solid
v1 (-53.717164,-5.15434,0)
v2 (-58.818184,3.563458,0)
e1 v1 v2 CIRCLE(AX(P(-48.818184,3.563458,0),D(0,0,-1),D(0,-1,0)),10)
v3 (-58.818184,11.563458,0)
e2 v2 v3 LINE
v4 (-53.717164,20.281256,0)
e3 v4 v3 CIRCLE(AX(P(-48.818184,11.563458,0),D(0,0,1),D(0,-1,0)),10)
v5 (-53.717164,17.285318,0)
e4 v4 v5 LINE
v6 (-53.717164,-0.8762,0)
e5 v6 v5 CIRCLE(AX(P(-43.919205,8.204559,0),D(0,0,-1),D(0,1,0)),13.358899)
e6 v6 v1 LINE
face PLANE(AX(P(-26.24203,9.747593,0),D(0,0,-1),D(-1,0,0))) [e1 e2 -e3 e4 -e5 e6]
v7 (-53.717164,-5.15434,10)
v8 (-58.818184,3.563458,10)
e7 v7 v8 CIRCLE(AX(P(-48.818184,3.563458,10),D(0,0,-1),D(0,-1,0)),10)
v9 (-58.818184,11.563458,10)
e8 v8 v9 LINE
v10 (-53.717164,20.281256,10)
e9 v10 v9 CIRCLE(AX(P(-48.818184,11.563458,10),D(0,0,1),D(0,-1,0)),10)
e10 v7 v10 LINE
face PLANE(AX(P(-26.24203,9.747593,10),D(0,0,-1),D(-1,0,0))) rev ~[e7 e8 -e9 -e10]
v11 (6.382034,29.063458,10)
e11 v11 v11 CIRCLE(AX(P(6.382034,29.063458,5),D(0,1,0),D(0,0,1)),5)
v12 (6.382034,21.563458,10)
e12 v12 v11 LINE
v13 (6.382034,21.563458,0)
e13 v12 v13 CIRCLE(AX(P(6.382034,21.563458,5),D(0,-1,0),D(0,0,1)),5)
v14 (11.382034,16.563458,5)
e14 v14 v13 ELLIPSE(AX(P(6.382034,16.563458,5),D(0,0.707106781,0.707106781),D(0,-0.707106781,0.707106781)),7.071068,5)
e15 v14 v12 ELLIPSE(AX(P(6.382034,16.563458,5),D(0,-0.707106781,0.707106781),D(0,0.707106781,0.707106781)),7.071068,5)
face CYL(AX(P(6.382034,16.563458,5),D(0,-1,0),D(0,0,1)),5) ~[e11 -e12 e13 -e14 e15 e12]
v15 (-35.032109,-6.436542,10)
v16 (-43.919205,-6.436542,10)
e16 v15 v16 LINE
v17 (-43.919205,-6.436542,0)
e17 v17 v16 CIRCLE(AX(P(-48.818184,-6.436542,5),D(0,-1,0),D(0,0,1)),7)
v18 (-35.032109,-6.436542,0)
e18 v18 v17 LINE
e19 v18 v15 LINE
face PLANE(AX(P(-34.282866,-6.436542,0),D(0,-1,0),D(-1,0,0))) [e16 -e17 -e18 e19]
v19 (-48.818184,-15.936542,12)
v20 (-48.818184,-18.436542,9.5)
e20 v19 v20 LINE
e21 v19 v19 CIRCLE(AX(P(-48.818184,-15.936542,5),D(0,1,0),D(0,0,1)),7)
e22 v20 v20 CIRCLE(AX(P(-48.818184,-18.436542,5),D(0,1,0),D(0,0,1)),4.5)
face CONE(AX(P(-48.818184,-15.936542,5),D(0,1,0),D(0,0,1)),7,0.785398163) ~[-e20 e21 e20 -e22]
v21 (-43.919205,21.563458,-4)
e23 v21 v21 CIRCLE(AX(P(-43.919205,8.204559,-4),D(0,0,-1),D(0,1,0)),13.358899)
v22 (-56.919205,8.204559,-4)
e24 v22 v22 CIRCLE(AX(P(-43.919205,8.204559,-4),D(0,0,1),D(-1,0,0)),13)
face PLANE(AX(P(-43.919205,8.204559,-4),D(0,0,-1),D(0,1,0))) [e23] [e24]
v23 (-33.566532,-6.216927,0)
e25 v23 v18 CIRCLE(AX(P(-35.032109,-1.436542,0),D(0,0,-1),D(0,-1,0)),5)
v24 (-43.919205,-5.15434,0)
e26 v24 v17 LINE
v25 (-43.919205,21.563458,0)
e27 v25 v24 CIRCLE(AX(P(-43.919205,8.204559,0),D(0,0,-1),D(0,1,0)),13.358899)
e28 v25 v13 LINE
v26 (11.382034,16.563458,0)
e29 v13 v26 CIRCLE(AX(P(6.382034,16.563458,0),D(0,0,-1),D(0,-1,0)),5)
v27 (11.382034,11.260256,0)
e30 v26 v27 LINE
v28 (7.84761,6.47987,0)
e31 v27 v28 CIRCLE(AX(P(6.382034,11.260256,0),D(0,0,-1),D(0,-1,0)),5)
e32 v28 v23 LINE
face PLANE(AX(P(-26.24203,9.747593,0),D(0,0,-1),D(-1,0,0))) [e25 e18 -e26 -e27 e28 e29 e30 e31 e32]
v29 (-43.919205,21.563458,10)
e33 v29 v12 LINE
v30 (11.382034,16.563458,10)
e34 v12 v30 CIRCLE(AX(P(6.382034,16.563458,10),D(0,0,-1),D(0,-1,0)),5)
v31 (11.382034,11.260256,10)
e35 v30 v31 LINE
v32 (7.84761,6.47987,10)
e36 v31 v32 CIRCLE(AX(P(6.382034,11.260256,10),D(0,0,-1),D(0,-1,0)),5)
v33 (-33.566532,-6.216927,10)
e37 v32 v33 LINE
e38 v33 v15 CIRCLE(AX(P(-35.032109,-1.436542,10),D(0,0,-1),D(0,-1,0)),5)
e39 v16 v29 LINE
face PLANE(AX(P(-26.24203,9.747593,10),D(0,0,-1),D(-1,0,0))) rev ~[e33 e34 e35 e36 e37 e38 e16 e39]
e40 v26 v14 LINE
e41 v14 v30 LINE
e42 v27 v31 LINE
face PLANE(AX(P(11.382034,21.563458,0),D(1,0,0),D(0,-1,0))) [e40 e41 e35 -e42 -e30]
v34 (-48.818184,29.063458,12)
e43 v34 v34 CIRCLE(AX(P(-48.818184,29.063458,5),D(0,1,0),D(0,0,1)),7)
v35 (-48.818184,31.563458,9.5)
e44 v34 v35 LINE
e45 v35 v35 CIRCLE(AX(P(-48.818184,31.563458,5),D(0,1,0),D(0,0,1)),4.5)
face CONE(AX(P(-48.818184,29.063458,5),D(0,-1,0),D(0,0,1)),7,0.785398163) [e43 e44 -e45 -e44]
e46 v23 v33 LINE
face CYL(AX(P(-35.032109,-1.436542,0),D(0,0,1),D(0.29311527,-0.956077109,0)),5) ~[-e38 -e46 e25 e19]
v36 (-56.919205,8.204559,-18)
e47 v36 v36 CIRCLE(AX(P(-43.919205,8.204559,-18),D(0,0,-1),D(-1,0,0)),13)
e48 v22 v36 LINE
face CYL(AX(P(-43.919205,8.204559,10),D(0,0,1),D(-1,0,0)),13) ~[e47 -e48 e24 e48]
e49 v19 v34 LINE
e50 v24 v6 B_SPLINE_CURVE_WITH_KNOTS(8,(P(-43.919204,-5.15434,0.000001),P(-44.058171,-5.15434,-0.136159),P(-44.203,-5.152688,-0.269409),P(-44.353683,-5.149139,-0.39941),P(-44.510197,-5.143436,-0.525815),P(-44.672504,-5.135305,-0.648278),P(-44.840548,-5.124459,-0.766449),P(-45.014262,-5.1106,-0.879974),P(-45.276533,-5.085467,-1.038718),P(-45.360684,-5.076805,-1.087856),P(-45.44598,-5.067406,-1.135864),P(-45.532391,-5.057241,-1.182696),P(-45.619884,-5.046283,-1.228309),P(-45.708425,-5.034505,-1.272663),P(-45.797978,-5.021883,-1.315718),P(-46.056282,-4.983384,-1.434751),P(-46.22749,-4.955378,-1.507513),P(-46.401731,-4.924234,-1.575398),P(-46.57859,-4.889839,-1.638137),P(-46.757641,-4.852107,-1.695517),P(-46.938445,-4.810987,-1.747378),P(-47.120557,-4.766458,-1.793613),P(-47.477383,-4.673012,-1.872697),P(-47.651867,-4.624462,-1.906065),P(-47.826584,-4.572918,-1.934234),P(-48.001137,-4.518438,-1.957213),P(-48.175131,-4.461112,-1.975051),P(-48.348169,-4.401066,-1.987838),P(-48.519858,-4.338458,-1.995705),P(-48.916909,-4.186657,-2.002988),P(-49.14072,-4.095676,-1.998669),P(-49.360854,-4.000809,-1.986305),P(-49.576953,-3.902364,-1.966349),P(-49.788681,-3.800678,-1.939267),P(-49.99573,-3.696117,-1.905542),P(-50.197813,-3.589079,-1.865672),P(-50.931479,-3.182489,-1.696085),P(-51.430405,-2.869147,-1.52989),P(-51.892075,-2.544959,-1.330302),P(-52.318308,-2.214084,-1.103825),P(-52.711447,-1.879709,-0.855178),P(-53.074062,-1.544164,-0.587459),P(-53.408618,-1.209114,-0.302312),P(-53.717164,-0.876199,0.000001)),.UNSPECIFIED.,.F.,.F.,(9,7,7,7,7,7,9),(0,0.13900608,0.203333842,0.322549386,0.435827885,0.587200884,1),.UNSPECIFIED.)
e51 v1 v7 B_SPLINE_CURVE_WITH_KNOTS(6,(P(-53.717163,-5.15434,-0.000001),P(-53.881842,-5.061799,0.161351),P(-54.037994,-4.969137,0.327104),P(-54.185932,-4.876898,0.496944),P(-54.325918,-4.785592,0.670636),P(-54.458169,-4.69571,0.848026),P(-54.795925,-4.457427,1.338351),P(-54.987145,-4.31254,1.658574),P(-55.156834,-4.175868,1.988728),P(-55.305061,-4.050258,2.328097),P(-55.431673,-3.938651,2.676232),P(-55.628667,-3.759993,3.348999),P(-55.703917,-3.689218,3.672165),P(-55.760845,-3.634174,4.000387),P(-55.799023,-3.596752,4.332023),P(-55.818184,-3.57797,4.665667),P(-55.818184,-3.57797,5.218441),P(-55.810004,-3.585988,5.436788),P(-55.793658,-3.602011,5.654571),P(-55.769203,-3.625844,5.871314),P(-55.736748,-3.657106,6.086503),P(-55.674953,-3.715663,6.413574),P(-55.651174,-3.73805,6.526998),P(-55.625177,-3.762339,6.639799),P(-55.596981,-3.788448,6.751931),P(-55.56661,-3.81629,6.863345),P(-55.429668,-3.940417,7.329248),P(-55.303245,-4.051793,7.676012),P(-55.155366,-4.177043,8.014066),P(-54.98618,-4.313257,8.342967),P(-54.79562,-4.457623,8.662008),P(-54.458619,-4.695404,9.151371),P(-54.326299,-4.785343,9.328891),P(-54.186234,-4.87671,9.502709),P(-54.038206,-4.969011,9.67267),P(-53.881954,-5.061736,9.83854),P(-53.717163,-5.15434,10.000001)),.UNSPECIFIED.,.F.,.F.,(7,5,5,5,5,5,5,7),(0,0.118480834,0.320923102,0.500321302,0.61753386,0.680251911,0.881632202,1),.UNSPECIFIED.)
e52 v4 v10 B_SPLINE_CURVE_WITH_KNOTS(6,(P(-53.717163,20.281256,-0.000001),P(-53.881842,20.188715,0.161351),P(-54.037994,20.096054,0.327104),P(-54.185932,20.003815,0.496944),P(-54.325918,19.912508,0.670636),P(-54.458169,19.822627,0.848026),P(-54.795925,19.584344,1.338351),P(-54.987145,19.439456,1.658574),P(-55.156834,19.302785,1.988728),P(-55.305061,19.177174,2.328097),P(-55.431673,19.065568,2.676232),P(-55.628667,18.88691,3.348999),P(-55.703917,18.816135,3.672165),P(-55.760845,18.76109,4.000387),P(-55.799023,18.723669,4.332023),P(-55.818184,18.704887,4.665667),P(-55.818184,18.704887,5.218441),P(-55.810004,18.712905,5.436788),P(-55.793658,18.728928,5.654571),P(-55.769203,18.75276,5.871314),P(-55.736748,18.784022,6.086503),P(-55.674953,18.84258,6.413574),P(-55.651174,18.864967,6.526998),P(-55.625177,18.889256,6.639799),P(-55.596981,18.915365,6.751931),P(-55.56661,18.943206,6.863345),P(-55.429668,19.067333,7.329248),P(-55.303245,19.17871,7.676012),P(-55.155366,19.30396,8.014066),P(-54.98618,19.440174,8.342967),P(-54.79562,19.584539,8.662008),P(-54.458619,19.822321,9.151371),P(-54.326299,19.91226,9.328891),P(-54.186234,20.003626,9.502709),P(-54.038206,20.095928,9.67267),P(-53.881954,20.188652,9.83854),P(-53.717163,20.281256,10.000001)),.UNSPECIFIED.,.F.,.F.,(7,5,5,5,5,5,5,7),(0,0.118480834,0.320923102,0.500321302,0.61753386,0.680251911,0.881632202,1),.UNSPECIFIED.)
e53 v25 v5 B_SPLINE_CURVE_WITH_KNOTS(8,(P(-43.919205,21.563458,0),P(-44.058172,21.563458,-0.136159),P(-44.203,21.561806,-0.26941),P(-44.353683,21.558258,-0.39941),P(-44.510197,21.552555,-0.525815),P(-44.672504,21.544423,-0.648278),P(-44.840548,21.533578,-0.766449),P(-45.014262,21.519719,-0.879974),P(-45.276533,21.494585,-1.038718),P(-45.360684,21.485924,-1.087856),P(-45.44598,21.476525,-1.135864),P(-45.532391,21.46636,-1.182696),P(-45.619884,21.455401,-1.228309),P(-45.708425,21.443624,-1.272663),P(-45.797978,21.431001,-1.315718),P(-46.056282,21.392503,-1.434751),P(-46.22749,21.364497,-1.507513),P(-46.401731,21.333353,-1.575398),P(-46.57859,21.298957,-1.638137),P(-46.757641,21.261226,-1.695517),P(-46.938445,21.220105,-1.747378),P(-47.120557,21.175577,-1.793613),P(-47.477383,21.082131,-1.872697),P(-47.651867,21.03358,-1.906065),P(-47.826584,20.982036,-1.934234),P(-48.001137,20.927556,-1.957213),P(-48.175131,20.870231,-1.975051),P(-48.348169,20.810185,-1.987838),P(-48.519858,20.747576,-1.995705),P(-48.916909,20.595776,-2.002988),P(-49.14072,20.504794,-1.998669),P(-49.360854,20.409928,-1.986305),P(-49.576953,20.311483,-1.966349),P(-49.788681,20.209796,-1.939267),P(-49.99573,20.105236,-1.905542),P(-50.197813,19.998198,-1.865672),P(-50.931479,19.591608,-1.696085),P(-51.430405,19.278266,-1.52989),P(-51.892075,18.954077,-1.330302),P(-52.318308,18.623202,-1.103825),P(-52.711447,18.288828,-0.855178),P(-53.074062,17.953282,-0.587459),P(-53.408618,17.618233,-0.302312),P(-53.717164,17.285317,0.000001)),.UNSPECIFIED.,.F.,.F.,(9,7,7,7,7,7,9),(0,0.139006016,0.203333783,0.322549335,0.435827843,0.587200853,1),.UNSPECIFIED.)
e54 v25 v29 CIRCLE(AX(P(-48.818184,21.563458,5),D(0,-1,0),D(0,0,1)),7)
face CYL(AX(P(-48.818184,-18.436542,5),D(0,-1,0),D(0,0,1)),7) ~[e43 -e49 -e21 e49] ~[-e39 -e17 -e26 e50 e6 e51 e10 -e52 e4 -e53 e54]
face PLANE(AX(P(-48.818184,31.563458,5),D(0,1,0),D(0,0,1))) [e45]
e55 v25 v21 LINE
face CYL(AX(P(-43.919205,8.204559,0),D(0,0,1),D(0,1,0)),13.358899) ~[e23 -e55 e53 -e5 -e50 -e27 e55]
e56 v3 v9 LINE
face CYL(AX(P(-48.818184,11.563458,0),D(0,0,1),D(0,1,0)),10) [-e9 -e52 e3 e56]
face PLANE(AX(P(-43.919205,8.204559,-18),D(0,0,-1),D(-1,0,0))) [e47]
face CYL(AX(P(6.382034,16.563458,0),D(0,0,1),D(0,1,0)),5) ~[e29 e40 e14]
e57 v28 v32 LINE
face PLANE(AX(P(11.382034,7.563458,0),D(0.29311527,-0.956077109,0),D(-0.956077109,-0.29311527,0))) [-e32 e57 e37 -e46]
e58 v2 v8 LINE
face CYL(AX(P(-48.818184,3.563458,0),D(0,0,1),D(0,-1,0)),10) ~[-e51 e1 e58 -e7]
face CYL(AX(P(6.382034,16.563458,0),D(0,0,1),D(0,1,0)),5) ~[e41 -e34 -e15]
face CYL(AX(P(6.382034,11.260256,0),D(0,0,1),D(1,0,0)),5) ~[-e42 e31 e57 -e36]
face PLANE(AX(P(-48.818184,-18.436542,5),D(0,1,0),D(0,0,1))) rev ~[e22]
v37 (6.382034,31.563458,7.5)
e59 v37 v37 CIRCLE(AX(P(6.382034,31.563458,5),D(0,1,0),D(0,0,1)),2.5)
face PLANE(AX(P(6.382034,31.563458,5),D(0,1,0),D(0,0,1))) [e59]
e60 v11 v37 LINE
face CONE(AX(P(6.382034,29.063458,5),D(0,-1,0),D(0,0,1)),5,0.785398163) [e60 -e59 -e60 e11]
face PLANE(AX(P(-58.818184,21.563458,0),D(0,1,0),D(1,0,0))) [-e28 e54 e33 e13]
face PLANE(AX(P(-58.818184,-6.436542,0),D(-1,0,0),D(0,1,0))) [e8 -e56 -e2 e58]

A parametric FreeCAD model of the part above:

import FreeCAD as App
import Part
import Sketcher

V = App.Vector


def edges_at(feature, points):
    """Names of the edges that pass closest to the given points."""
    edges = feature.Shape.Edges
    near = lambda p: min(range(len(edges)), key=lambda i: edges[i].distToShape(Part.Vertex(*p))[0])
    return sorted({f"Edge{near(p) + 1}" for p in points})

doc = App.newDocument("Part")
body = doc.addObject("PartDesign::Body", "Body")

sketch1 = doc.addObject("Sketcher::SketchObject", "Sketch")
body.addObject(sketch1)
sketch1.AttachmentSupport = (doc.XY_Plane, [""])
sketch1.MapMode = "FlatFace"
sketch1.addGeometry([
    Part.LineSegment(V(11.382034, 21.563458, 0), V(-58.818184, 21.563458, 0)),
    Part.LineSegment(V(-58.818184, 21.563458, 0), V(-58.818184, -6.436542, 0)),
    Part.LineSegment(V(-58.818184, -6.436542, 0), V(-34.282866, -6.436542, 0)),
    Part.LineSegment(V(-34.282866, -6.436542, 0), V(11.382034, 7.563458, 0)),
    Part.LineSegment(V(11.382034, 7.563458, 0), V(11.382034, 21.563458, 0)),
], False)
sketch1.addConstraint([
    Sketcher.Constraint("Coincident", 0, 2, 1, 1),
    Sketcher.Constraint("Coincident", 1, 2, 2, 1),
    Sketcher.Constraint("Coincident", 2, 2, 3, 1),
    Sketcher.Constraint("Coincident", 3, 2, 4, 1),
    Sketcher.Constraint("Coincident", 4, 2, 0, 1),
    Sketcher.Constraint("Horizontal", 0),
    Sketcher.Constraint("Vertical", 1),
    Sketcher.Constraint("Horizontal", 2),
    Sketcher.Constraint("Vertical", 4),
    Sketcher.Constraint("DistanceY", 1, 2, 1, 1, 28.0),
    Sketcher.Constraint("DistanceY", 4, 1, 4, 2, 14.0),
    Sketcher.Constraint("DistanceX", 0, 2, 0, 1, 70.200218),
    Sketcher.Constraint("DistanceX", 2, 1, 2, 2, 24.535318),
    Sketcher.Constraint("DistanceY", -1, 1, 0, 2, 21.563458),
    Sketcher.Constraint("DistanceX", 0, 2, -1, 1, 58.818184),
])
pad1 = doc.addObject("PartDesign::Pad", "Pad")
body.addObject(pad1)
pad1.Profile = sketch1
pad1.Length = 10
doc.recompute()

fillet = doc.addObject("PartDesign::Fillet", "Fillet")
body.addObject(fillet)
fillet.Base = (pad1, edges_at(pad1, [(-58.818, 21.563, 5), (-58.818, -6.437, 5)]))
fillet.Radius = 10
doc.recompute()

fillet2 = doc.addObject("PartDesign::Fillet", "Fillet001")
body.addObject(fillet2)
fillet2.Base = (fillet, edges_at(fillet, [(11.382, 21.563, 5), (11.382, 7.563, 5), (-34.283, -6.437, 5)]))
fillet2.Radius = 5

sketch2 = doc.addObject("Sketcher::SketchObject", "Sketch001")
body.addObject(sketch2)
sketch2.AttachmentSupport = (doc.XZ_Plane, [""])
sketch2.MapMode = "FlatFace"
sketch2.AttachmentOffset = App.Placement(V(0, 0, -21.563458), App.Rotation())
sketch2.addGeometry(Part.Circle(V(-48.818184, 5, 0), V(0, 0, 1), 7), False)
sketch2.addConstraint([
    Sketcher.Constraint("Diameter", 0, 14.0),
    Sketcher.Constraint("DistanceY", -1, 1, 0, 3, 5.0),
    Sketcher.Constraint("DistanceX", 0, 3, -1, 1, 48.818184),
])
pad2 = doc.addObject("PartDesign::Pad", "Pad001")
body.addObject(pad2)
pad2.Profile = sketch2
pad2.Type = "TwoLengths"
pad2.Length = 10
pad2.Length2 = 40
pad2.Reversed = True

sketch3 = doc.addObject("Sketcher::SketchObject", "Sketch002")
body.addObject(sketch3)
sketch3.AttachmentSupport = (doc.XZ_Plane, [""])
sketch3.MapMode = "FlatFace"
sketch3.AttachmentOffset = App.Placement(V(0, 0, -16.563458), App.Rotation())
sketch3.addGeometry(Part.Circle(V(6.382034, 5, 0), V(0, 0, 1), 5), False)
sketch3.addConstraint([
    Sketcher.Constraint("Diameter", 0, 10.0),
    Sketcher.Constraint("DistanceY", -1, 1, 0, 3, 5.0),
    Sketcher.Constraint("DistanceX", -1, 1, 0, 3, 6.382034),
])
pad3 = doc.addObject("PartDesign::Pad", "Pad002")
body.addObject(pad3)
pad3.Profile = sketch3
pad3.Length = 15
pad3.Reversed = True
doc.recompute()

chamfer = doc.addObject("PartDesign::Chamfer", "Chamfer")
body.addObject(chamfer)
chamfer.Base = (pad3, edges_at(pad3, [(-48.818, -18.437, -2), (-48.818, 31.563, -2), (6.382, 31.563, 0)]))
chamfer.Size = 2.5

sketch4 = doc.addObject("Sketcher::SketchObject", "Sketch003")
body.addObject(sketch4)
sketch4.AttachmentSupport = (doc.XY_Plane, [""])
sketch4.MapMode = "FlatFace"
sketch4.addGeometry(Part.Circle(V(-43.919205, 8.204559, 0), V(0, 0, 1), 13), False)
sketch4.addConstraint([
    Sketcher.Constraint("Diameter", 0, 26.0),
    Sketcher.Constraint("DistanceY", -1, 1, 0, 3, 8.204559),
    Sketcher.Constraint("DistanceX", 0, 3, -1, 1, 43.919205),
])
pad4 = doc.addObject("PartDesign::Pad", "Pad003")
body.addObject(pad4)
pad4.Profile = sketch4
pad4.Type = "TwoLengths"
pad4.Length = 18
pad4.Length2 = 10
pad4.Reversed = True

sketch5 = doc.addObject("Sketcher::SketchObject", "Sketch004")
body.addObject(sketch5)
sketch5.AttachmentSupport = (doc.XY_Plane, [""])
sketch5.MapMode = "FlatFace"
sketch5.addGeometry(Part.Circle(V(-43.919205, 8.204559, 0), V(0, 0, 1), 13.358899), False)
sketch5.addConstraint([
    Sketcher.Constraint("Diameter", 0, 26.717798),
    Sketcher.Constraint("DistanceY", -1, 1, 0, 3, 8.204559),
    Sketcher.Constraint("DistanceX", 0, 3, -1, 1, 43.919205),
])
pad5 = doc.addObject("PartDesign::Pad", "Pad004")
body.addObject(pad5)
pad5.Profile = sketch5
pad5.Length = 4
pad5.Reversed = True

doc.recompute()
